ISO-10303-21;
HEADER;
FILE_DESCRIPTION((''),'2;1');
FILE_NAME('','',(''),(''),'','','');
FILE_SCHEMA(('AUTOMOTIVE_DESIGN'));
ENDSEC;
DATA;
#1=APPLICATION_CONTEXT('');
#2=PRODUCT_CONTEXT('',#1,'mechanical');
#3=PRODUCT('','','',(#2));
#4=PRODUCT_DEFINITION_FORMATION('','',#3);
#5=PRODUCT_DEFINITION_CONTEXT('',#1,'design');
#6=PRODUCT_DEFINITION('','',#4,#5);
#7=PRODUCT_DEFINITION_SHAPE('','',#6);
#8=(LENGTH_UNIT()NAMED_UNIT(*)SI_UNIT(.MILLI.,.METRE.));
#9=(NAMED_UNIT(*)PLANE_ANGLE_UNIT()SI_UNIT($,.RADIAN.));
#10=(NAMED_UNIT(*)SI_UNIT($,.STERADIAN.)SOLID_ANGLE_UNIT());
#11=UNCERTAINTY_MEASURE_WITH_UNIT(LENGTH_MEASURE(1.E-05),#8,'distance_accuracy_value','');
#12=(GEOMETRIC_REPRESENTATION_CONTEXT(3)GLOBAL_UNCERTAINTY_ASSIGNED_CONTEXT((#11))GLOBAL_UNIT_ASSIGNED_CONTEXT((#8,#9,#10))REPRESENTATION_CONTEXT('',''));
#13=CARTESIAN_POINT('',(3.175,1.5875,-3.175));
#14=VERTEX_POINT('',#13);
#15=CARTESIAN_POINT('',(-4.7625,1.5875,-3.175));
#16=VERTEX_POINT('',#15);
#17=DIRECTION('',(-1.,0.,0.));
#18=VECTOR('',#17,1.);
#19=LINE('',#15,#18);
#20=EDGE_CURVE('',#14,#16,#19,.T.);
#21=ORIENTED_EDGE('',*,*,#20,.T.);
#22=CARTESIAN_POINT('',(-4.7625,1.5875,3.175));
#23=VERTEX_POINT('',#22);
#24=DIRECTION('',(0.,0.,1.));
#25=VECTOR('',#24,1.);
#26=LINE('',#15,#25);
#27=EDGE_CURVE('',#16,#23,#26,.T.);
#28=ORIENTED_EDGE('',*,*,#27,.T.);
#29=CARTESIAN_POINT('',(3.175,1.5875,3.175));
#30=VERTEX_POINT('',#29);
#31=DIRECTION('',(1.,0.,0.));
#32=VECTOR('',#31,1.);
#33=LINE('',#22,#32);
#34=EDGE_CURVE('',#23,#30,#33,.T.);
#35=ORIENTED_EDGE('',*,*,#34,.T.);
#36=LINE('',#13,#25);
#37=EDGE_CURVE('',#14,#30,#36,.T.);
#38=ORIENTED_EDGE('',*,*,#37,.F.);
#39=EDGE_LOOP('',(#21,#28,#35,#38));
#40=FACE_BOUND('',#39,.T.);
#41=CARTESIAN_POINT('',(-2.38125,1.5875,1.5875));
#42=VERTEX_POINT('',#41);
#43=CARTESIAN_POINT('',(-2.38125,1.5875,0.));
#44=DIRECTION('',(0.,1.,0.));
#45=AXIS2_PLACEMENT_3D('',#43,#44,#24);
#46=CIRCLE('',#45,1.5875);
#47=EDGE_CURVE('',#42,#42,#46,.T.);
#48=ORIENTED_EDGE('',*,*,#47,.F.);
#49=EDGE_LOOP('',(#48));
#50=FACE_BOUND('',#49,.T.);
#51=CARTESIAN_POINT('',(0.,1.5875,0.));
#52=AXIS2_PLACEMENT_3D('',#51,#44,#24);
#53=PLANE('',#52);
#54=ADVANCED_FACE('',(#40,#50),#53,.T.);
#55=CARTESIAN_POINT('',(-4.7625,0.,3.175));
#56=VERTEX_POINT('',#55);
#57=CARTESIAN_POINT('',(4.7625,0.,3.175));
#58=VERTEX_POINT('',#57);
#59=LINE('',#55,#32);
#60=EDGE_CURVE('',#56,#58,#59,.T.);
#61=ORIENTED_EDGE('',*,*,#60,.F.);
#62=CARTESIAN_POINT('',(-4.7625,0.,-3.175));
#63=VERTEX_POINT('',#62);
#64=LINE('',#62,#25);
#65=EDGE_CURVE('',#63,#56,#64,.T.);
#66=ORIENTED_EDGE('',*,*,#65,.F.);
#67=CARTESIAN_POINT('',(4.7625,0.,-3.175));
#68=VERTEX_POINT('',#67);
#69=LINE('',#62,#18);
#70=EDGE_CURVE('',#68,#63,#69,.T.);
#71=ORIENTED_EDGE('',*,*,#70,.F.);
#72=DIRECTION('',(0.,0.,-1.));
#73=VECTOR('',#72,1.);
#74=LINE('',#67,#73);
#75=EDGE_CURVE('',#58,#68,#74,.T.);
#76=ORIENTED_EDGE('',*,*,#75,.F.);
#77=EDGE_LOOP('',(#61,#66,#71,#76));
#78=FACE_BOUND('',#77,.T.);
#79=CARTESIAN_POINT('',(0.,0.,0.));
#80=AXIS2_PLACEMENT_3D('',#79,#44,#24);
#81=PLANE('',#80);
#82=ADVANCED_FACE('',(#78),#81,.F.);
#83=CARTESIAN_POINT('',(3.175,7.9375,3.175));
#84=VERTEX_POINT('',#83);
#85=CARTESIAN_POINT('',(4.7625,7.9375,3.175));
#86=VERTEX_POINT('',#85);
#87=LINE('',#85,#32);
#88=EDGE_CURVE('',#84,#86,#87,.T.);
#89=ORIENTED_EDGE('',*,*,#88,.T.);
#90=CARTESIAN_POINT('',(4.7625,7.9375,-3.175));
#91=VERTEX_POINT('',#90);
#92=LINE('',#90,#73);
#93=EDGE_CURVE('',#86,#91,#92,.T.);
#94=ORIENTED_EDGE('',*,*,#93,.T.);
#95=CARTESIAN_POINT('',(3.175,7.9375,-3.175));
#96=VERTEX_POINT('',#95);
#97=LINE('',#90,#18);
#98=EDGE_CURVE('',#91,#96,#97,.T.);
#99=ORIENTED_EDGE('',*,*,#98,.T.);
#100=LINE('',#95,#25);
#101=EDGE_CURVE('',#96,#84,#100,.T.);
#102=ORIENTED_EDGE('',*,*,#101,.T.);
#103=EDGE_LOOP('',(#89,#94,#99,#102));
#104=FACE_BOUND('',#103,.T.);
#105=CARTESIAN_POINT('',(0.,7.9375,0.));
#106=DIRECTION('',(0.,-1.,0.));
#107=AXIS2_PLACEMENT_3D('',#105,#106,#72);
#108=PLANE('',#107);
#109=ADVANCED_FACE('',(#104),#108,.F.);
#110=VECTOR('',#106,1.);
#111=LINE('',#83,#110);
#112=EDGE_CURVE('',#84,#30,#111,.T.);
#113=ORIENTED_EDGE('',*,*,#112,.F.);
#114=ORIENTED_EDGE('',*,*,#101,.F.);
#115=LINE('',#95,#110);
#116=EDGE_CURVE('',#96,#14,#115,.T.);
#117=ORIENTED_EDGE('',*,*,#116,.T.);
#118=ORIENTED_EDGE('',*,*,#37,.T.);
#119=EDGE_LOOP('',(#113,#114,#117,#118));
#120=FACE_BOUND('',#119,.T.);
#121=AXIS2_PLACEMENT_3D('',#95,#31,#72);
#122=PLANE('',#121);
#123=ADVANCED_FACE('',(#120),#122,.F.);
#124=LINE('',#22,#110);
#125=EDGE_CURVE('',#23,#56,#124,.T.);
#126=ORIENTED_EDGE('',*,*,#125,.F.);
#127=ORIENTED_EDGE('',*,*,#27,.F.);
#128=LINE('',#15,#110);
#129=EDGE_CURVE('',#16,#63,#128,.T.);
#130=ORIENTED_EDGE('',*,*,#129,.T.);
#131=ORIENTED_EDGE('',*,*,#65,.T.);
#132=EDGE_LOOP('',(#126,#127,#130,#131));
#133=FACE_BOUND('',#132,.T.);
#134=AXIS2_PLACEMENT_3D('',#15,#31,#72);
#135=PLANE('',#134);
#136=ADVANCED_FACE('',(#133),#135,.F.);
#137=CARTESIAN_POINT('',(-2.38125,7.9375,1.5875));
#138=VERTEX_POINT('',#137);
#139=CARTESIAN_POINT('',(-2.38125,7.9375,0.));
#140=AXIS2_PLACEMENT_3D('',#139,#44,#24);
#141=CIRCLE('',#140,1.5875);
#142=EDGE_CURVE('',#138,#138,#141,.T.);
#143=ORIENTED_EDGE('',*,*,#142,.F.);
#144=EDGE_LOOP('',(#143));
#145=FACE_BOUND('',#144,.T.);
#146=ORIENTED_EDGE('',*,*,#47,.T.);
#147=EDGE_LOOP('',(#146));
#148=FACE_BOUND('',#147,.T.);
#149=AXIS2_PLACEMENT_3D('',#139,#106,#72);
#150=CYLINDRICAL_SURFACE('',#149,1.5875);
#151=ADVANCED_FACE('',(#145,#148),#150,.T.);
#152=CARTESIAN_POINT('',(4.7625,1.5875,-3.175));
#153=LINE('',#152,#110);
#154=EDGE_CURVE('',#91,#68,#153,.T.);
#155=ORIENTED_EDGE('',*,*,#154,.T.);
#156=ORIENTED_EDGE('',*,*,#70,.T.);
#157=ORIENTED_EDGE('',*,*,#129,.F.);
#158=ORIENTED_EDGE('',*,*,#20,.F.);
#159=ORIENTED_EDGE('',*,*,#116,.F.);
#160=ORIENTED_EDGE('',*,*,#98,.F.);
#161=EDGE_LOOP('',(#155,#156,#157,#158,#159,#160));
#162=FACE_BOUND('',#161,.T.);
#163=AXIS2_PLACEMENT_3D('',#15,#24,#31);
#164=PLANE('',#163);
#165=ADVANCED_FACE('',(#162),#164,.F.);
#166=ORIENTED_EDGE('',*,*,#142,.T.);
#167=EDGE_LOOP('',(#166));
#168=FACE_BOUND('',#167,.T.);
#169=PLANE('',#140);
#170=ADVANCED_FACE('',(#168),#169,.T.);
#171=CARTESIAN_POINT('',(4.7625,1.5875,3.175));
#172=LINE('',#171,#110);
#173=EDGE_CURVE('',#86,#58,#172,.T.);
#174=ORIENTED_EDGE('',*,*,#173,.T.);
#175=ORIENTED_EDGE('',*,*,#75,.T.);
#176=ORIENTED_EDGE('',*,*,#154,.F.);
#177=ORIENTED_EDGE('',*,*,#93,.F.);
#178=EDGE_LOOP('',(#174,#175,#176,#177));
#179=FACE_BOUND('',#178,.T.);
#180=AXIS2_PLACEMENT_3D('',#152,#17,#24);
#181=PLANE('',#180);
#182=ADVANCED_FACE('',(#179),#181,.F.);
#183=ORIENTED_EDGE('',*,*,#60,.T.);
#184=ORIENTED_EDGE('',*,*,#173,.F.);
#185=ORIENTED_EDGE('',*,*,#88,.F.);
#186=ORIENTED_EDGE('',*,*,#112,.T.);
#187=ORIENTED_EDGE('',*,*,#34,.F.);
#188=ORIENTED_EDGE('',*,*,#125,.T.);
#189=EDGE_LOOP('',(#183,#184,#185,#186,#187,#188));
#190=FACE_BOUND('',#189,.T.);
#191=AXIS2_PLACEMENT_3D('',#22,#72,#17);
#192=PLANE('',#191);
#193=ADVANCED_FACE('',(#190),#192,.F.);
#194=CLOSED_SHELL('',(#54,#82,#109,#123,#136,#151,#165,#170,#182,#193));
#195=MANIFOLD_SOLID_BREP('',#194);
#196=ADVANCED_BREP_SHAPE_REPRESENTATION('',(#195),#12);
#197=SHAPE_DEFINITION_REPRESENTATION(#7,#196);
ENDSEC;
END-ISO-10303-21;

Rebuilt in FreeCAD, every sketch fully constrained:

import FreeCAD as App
import Part
import Sketcher
Q = App.Units.Quantity


def add_polygon(sketch, points):
    """Adds a closed chain of lines whose ends are joined by coincident constraints."""
    first, n = sketch.GeometryCount, len(points)
    for a, b in zip(points, points[1:] + points[:1]):
        sketch.addGeometry(Part.LineSegment(App.Vector(*a, 0), App.Vector(*b, 0)), False)
    for i in range(n):
        sketch.addConstraint(Sketcher.Constraint("Coincident", first + i, 2, first + (i + 1) % n, 1))

doc = App.newDocument("Part")
body = doc.addObject("PartDesign::Body", "Body")

# Sketch on XZ plane
sketch1 = body.newObject("Sketcher::SketchObject", "Sketch")
sketch1.AttachmentSupport = (doc.getObject("XZ_Plane"), [""])
sketch1.MapMode = "FlatFace"
add_polygon(sketch1, [(-5, -3), (-5, 3), (5, 3), (5, -3)])  # lines 0-3
sketch1.addConstraint([
    Sketcher.Constraint("Vertical", 0),
    Sketcher.Constraint("Horizontal", 1),
    Sketcher.Constraint("Vertical", 2),
    Sketcher.Constraint("Horizontal", 3),
    Sketcher.Constraint("Symmetric", 0, 2, 2, 2, -1, 1),
    Sketcher.Constraint("DistanceY", 0, 1, 0, 2, Q("0.25 in")),
    Sketcher.Constraint("DistanceX", 1, 1, 1, 2, Q("0.375 in")),
])
pad1 = body.newObject("PartDesign::Pad", "Pad")
pad1.Profile = sketch1
pad1.Length = Q("0.0625 in")
pad1.Reversed = True

# Sketch on XZ plane
sketch2 = body.newObject("Sketcher::SketchObject", "Sketch001")
sketch2.AttachmentSupport = (doc.getObject("XZ_Plane"), [""])
sketch2.MapMode = "FlatFace"
sketch2.AttachmentOffset = App.Placement(App.Vector(0, 0, -0.0625 * 25.4), App.Rotation())
sketch2.addGeometry(Part.Circle(App.Vector(-2.4, 0, 0), App.Vector(0, 0, 1), 1.6), False)  # 0
add_polygon(sketch2, [(3.2, -3.2), (3.2, 3.2), (4.8, 3.2), (4.8, -3.2)])  # lines 1-4
sketch2.addConstraint([
    Sketcher.Constraint("Vertical", 1),
    Sketcher.Constraint("Horizontal", 2),
    Sketcher.Constraint("Vertical", 3),
    Sketcher.Constraint("Horizontal", 4),
    Sketcher.Constraint("PointOnObject", 0, 3, -1),
    Sketcher.Constraint("Diameter", 0, Q("0.125 in")),
    Sketcher.Constraint("DistanceY", 1, 1, 1, 2, Q("0.25 in")),
    Sketcher.Constraint("DistanceX", 2, 1, 2, 2, Q("0.0625 in")),
    Sketcher.Constraint("DistanceX", 0, 3, -1, 1, Q("0.09375 in")),
    Sketcher.Constraint("DistanceX", -1, 1, 1, 2, Q("0.125 in")),
    Sketcher.Constraint("DistanceY", -1, 1, 1, 2, Q("0.125 in")),
])
pad2 = body.newObject("PartDesign::Pad", "Pad001")
pad2.Profile = sketch2
pad2.Length = Q("0.25 in")
pad2.Reversed = True

doc.recompute()
